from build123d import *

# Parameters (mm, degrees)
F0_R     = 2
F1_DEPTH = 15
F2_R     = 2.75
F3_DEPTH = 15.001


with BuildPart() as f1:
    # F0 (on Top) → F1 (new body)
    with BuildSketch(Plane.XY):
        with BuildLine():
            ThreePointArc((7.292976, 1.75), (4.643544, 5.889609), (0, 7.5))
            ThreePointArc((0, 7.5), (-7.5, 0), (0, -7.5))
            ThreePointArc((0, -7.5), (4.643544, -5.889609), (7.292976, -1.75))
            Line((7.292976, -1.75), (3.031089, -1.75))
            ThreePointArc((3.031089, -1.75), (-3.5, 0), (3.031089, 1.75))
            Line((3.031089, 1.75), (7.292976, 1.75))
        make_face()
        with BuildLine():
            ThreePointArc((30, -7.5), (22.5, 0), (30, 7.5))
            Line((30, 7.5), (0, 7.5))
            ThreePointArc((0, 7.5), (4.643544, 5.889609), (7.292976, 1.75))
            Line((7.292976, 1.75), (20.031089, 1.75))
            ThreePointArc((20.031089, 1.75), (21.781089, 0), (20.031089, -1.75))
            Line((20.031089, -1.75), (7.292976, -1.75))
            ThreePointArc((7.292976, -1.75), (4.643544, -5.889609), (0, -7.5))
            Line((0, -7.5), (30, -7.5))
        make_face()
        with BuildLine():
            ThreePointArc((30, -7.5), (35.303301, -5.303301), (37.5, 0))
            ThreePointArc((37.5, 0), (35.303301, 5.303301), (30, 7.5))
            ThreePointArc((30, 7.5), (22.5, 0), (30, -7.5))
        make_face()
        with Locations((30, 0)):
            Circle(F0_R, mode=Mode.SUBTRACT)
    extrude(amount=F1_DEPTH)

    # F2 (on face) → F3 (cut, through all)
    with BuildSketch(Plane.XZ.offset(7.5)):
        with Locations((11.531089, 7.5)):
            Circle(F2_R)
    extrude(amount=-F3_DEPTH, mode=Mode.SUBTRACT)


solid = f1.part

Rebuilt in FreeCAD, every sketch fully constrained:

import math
import FreeCAD as App
import Part
import Sketcher

V = App.Vector

doc = App.newDocument("Part")
body = doc.addObject("PartDesign::Body", "Body")

sketch1 = doc.addObject("Sketcher::SketchObject", "Sketch")
body.addObject(sketch1)
sketch1.AttachmentSupport = (doc.XY_Plane, [""])
sketch1.MapMode = "FlatFace"
sketch1.addGeometry(Part.ArcOfCircle(Part.Circle(V(0, 0, 0), V(0, 0, 1), 7.5), math.radians(90), math.radians(270)), False)
sketch1.addGeometry(Part.LineSegment(V(0, -7.5, 0), V(30, -7.5, 0)), False)
sketch1.addGeometry(Part.ArcOfCircle(Part.Circle(V(30, 0, 0), V(0, 0, 1), 7.5), math.radians(-90), math.radians(0)), False)
sketch1.addGeometry(Part.ArcOfCircle(Part.Circle(V(30, 0, 0), V(0, 0, 1), 7.5), math.radians(0), math.radians(90)), False)
sketch1.addGeometry(Part.LineSegment(V(30, 7.5, 0), V(0, 7.5, 0)), False)
sketch1.addGeometry(Part.ArcOfCircle(Part.Circle(V(0, 0, 0), V(0, 0, 1), 3.5), math.radians(30), math.radians(330)), False)
sketch1.addGeometry(Part.LineSegment(V(3, 1.8, 0), V(20, 1.8, 0)), False)
sketch1.addGeometry(Part.ArcOfCircle(Part.Circle(V(20, 0, 0), V(0, 0, 1), 1.8), math.radians(-90), math.radians(90)), False)
sketch1.addGeometry(Part.LineSegment(V(20, -1.8, 0), V(3, -1.8, 0)), False)
sketch1.addGeometry(Part.Circle(V(30, 0, 0), V(0, 0, 1), 2), False)
sketch1.addConstraint(Sketcher.Constraint("Tangent", 0, 2, 1, 1))
sketch1.addConstraint(Sketcher.Constraint("Tangent", 1, 2, 2, 1))
sketch1.addConstraint(Sketcher.Constraint("Tangent", 2, 2, 3, 1))
sketch1.addConstraint(Sketcher.Constraint("Tangent", 3, 2, 4, 1))
sketch1.addConstraint(Sketcher.Constraint("Tangent", 4, 2, 0, 1))
sketch1.addConstraint(Sketcher.Constraint("Coincident", 5, 1, 6, 1))
sketch1.addConstraint(Sketcher.Constraint("Tangent", 6, 2, 7, 2))
sketch1.addConstraint(Sketcher.Constraint("Tangent", 7, 1, 8, 1))
sketch1.addConstraint(Sketcher.Constraint("Coincident", 8, 2, 5, 2))
sketch1.addConstraint(Sketcher.Constraint("Horizontal", 1))
sketch1.addConstraint(Sketcher.Constraint("Horizontal", 4))
sketch1.addConstraint(Sketcher.Constraint("Horizontal", 6))
sketch1.addConstraint(Sketcher.Constraint("Horizontal", 8))
sketch1.addConstraint(Sketcher.Constraint("Coincident", 0, 3, -1, 1))
sketch1.addConstraint(Sketcher.Constraint("Coincident", 5, 3, -1, 1))
sketch1.addConstraint(Sketcher.Constraint("Coincident", 9, 3, 2, 3))
sketch1.addConstraint(Sketcher.Constraint("Equal", 0, 2))
sketch1.addConstraint(Sketcher.Constraint("PointOnObject", 7, 3, -1))
sketch1.addConstraint(Sketcher.Constraint("PointOnObject", 2, 2, -1))
sketch1.addConstraint(Sketcher.Constraint("Diameter", 9, 4.0))
sketch1.addConstraint(Sketcher.Constraint("Radius", 0, 7.5))
sketch1.addConstraint(Sketcher.Constraint("Radius", 5, 3.5))
sketch1.addConstraint(Sketcher.Constraint("DistanceX", 1, 1, 1, 2, 30.0))
sketch1.addConstraint(Sketcher.Constraint("DistanceX", 6, 1, 6, 2, 17.0))
sketch1.addConstraint(Sketcher.Constraint("Radius", 7, 1.75))
pad1 = doc.addObject("PartDesign::Pad", "Pad")
body.addObject(pad1)
pad1.Profile = sketch1
pad1.Length = 15

sketch2 = doc.addObject("Sketcher::SketchObject", "Sketch001")
body.addObject(sketch2)
sketch2.AttachmentSupport = (doc.XZ_Plane, [""])
sketch2.MapMode = "FlatFace"
sketch2.AttachmentOffset = App.Placement(V(0, 0, 7.5), App.Rotation())
sketch2.addGeometry(Part.Circle(V(11.5, 7.5, 0), V(0, 0, 1), 2.8), False)
sketch2.addConstraint(Sketcher.Constraint("Diameter", 0, 5.5))
sketch2.addConstraint(Sketcher.Constraint("DistanceY", -1, 1, 0, 3, 7.5))
sketch2.addConstraint(Sketcher.Constraint("DistanceX", -1, 1, 0, 3, 11.531089))
pocket1 = doc.addObject("PartDesign::Pocket", "Pocket")
body.addObject(pocket1)
pocket1.Profile = sketch2
pocket1.Type = "ThroughAll"

doc.recompute()
